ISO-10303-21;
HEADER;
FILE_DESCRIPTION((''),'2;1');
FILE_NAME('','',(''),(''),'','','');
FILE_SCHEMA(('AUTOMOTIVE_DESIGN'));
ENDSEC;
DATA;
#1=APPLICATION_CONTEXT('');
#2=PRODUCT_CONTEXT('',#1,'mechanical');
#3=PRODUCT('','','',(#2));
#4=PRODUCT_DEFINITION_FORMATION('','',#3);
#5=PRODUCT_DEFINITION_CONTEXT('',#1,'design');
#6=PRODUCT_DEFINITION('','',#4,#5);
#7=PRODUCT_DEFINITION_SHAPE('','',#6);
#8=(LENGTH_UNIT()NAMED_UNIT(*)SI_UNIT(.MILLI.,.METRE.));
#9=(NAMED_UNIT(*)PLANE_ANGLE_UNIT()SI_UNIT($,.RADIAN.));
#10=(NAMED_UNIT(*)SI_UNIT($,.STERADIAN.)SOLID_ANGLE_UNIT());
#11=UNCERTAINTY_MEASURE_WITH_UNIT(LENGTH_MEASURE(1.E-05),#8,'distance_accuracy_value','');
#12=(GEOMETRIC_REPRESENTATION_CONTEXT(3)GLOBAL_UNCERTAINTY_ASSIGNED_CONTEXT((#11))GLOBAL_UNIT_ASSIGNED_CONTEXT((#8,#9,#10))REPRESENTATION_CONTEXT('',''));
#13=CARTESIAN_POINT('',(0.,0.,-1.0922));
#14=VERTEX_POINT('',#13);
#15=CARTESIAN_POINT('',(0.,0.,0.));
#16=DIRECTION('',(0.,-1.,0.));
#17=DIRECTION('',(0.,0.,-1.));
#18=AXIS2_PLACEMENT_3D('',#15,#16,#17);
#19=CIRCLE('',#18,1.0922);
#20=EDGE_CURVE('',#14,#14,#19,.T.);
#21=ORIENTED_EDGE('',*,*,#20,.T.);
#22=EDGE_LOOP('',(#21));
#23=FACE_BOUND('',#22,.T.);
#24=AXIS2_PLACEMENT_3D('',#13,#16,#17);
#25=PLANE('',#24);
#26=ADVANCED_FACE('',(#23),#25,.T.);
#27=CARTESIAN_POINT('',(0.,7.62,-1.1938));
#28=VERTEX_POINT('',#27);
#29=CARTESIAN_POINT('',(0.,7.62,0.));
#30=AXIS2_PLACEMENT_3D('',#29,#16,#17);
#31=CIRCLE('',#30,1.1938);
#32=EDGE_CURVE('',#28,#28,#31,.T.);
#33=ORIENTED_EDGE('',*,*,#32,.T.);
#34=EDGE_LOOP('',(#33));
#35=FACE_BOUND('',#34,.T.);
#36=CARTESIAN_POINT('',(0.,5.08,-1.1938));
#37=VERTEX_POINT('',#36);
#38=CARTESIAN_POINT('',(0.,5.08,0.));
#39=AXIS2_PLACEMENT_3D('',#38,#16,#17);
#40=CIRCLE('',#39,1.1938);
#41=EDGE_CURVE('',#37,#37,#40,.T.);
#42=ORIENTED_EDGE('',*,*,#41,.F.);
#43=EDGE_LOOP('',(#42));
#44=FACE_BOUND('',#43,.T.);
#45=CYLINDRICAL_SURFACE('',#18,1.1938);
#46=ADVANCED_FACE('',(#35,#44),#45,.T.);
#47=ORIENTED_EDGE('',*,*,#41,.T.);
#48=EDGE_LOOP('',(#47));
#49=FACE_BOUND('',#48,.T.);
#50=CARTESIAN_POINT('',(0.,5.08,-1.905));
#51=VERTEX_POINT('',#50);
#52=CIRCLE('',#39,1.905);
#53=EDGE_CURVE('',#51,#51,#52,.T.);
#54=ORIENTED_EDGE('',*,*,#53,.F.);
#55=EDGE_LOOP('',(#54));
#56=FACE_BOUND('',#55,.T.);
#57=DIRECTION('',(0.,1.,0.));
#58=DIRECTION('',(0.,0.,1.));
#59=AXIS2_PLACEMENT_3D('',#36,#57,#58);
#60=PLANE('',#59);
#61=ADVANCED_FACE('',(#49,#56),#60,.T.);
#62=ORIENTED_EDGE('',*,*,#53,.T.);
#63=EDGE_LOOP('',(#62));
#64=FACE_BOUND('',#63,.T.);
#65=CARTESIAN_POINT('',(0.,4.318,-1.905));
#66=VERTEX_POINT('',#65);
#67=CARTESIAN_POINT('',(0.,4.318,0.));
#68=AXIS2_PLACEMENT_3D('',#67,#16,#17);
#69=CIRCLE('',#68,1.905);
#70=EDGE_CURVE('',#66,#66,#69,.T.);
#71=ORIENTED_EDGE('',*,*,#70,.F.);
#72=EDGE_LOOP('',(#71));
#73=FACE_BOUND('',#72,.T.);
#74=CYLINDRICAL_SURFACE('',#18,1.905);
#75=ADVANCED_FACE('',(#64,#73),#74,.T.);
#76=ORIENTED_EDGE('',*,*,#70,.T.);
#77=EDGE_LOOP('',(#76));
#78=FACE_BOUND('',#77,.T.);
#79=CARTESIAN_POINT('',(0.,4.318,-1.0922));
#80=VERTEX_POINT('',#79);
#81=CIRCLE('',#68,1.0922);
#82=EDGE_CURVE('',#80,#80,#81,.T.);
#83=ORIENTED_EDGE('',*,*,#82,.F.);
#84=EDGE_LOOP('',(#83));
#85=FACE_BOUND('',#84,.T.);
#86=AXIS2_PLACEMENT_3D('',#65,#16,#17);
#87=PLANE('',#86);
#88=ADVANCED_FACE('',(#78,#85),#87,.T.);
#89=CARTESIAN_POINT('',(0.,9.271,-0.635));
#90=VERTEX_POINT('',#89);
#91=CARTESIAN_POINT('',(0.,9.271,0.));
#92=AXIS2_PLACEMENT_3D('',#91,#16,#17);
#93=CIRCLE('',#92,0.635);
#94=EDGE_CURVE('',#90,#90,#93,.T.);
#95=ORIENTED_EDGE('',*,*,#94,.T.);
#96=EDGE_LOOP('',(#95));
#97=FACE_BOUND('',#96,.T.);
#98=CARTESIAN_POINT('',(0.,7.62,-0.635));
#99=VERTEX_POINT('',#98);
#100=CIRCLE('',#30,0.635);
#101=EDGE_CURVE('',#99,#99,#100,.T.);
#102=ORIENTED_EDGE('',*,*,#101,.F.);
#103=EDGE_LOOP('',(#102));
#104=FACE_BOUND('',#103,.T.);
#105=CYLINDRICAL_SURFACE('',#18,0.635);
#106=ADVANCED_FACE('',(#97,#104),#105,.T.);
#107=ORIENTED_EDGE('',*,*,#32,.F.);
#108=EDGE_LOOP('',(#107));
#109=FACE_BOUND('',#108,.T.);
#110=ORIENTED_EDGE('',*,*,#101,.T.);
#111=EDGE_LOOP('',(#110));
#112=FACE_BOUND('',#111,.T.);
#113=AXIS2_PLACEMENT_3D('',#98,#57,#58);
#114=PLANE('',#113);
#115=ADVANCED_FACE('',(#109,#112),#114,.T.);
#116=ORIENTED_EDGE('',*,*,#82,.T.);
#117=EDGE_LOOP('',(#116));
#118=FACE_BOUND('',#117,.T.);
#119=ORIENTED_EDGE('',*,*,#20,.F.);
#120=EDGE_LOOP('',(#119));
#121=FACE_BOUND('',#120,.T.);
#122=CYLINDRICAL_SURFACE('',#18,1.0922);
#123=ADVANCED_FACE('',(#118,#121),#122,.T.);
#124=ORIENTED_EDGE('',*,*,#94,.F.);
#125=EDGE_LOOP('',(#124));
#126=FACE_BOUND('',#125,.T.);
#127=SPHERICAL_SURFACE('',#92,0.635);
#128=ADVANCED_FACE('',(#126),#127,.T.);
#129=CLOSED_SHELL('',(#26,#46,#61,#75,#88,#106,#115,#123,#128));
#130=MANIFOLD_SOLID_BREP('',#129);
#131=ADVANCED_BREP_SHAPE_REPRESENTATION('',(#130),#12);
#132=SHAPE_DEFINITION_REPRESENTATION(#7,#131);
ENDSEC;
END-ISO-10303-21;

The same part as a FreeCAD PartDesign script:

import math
import FreeCAD as App
import Part
import Sketcher
from FreeCAD import Vector
Q = App.Units.Quantity

doc = App.newDocument("Part")
body = doc.addObject("PartDesign::Body", "Body")

# Sketch on YZ plane
sketch1 = body.newObject("Sketcher::SketchObject", "Sketch")
sketch1.AttachmentSupport = (doc.getObject("YZ_Plane"), [""])
sketch1.MapMode = "FlatFace"
sketch1.addGeometry([
    Part.LineSegment(Vector(7.6, -1.2, 0), Vector(7.6, -0.6, 0)),  # 0
    Part.LineSegment(Vector(7.6, -0.6, 0), Vector(9.3, -0.6, 0)),  # 1
    Part.ArcOfCircle(Part.Circle(Vector(9.3, 0, 0), Vector(0, 0, 1), 0.6), math.radians(-90), math.radians(0)),  # 2
    Part.LineSegment(Vector(9.9, 0, 0), Vector(0, 0, 0)),  # 3
    Part.LineSegment(Vector(0, 0, 0), Vector(0, -1.1, 0)),  # 4
    Part.LineSegment(Vector(0, -1.1, 0), Vector(4.3, -1.1, 0)),  # 5
    Part.LineSegment(Vector(4.3, -1.1, 0), Vector(4.3, -1.9, 0)),  # 6
    Part.LineSegment(Vector(4.3, -1.9, 0), Vector(5.1, -1.9, 0)),  # 7
    Part.LineSegment(Vector(5.1, -1.9, 0), Vector(5.1, -1.2, 0)),  # 8
    Part.LineSegment(Vector(5.1, -1.2, 0), Vector(7.6, -1.2, 0)),  # 9
], False)
sketch1.addConstraint([
    Sketcher.Constraint("Coincident", 0, 2, 1, 1),
    Sketcher.Constraint("Tangent", 1, 2, 2, 1),
    Sketcher.Constraint("Coincident", 2, 2, 3, 1),
    Sketcher.Constraint("Coincident", 3, 2, 4, 1),
    Sketcher.Constraint("Coincident", 4, 2, 5, 1),
    Sketcher.Constraint("Coincident", 5, 2, 6, 1),
    Sketcher.Constraint("Coincident", 6, 2, 7, 1),
    Sketcher.Constraint("Coincident", 7, 2, 8, 1),
    Sketcher.Constraint("Coincident", 8, 2, 9, 1),
    Sketcher.Constraint("Coincident", 9, 2, 0, 1),
    Sketcher.Constraint("Vertical", 0),
    Sketcher.Constraint("Horizontal", 1),
    Sketcher.Constraint("Horizontal", 3),
    Sketcher.Constraint("Vertical", 4),
    Sketcher.Constraint("Horizontal", 5),
    Sketcher.Constraint("Vertical", 6),
    Sketcher.Constraint("Horizontal", 7),
    Sketcher.Constraint("Vertical", 8),
    Sketcher.Constraint("Horizontal", 9),
    Sketcher.Constraint("Coincident", 3, 2, -1, 1),
    Sketcher.Constraint("PointOnObject", 2, 3, -1),
    Sketcher.Constraint("DistanceX", 9, 1, 9, 2, Q("0.1 in")),
    Sketcher.Constraint("Radius", 2, Q("0.025 in")),
    Sketcher.Constraint("DistanceX", 3, 2, 3, 1, Q("0.39 in")),
    Sketcher.Constraint("DistanceX", 5, 1, 5, 2, Q("0.17 in")),
    Sketcher.Constraint("DistanceX", 7, 1, 7, 2, Q("0.03 in")),
    Sketcher.Constraint("DistanceY", 0, 1, 0, 2, Q("0.022 in")),
    Sketcher.Constraint("DistanceY", 4, 2, 4, 1, Q("0.043 in")),
    Sketcher.Constraint("DistanceY", 6, 2, 6, 1, Q("0.032 in")),
])
revolution = body.newObject("PartDesign::Revolution", "Revolution")
revolution.Profile = sketch1
revolution.ReferenceAxis = (sketch1, ["H_Axis"])
revolution.Angle = 360

doc.recompute()
